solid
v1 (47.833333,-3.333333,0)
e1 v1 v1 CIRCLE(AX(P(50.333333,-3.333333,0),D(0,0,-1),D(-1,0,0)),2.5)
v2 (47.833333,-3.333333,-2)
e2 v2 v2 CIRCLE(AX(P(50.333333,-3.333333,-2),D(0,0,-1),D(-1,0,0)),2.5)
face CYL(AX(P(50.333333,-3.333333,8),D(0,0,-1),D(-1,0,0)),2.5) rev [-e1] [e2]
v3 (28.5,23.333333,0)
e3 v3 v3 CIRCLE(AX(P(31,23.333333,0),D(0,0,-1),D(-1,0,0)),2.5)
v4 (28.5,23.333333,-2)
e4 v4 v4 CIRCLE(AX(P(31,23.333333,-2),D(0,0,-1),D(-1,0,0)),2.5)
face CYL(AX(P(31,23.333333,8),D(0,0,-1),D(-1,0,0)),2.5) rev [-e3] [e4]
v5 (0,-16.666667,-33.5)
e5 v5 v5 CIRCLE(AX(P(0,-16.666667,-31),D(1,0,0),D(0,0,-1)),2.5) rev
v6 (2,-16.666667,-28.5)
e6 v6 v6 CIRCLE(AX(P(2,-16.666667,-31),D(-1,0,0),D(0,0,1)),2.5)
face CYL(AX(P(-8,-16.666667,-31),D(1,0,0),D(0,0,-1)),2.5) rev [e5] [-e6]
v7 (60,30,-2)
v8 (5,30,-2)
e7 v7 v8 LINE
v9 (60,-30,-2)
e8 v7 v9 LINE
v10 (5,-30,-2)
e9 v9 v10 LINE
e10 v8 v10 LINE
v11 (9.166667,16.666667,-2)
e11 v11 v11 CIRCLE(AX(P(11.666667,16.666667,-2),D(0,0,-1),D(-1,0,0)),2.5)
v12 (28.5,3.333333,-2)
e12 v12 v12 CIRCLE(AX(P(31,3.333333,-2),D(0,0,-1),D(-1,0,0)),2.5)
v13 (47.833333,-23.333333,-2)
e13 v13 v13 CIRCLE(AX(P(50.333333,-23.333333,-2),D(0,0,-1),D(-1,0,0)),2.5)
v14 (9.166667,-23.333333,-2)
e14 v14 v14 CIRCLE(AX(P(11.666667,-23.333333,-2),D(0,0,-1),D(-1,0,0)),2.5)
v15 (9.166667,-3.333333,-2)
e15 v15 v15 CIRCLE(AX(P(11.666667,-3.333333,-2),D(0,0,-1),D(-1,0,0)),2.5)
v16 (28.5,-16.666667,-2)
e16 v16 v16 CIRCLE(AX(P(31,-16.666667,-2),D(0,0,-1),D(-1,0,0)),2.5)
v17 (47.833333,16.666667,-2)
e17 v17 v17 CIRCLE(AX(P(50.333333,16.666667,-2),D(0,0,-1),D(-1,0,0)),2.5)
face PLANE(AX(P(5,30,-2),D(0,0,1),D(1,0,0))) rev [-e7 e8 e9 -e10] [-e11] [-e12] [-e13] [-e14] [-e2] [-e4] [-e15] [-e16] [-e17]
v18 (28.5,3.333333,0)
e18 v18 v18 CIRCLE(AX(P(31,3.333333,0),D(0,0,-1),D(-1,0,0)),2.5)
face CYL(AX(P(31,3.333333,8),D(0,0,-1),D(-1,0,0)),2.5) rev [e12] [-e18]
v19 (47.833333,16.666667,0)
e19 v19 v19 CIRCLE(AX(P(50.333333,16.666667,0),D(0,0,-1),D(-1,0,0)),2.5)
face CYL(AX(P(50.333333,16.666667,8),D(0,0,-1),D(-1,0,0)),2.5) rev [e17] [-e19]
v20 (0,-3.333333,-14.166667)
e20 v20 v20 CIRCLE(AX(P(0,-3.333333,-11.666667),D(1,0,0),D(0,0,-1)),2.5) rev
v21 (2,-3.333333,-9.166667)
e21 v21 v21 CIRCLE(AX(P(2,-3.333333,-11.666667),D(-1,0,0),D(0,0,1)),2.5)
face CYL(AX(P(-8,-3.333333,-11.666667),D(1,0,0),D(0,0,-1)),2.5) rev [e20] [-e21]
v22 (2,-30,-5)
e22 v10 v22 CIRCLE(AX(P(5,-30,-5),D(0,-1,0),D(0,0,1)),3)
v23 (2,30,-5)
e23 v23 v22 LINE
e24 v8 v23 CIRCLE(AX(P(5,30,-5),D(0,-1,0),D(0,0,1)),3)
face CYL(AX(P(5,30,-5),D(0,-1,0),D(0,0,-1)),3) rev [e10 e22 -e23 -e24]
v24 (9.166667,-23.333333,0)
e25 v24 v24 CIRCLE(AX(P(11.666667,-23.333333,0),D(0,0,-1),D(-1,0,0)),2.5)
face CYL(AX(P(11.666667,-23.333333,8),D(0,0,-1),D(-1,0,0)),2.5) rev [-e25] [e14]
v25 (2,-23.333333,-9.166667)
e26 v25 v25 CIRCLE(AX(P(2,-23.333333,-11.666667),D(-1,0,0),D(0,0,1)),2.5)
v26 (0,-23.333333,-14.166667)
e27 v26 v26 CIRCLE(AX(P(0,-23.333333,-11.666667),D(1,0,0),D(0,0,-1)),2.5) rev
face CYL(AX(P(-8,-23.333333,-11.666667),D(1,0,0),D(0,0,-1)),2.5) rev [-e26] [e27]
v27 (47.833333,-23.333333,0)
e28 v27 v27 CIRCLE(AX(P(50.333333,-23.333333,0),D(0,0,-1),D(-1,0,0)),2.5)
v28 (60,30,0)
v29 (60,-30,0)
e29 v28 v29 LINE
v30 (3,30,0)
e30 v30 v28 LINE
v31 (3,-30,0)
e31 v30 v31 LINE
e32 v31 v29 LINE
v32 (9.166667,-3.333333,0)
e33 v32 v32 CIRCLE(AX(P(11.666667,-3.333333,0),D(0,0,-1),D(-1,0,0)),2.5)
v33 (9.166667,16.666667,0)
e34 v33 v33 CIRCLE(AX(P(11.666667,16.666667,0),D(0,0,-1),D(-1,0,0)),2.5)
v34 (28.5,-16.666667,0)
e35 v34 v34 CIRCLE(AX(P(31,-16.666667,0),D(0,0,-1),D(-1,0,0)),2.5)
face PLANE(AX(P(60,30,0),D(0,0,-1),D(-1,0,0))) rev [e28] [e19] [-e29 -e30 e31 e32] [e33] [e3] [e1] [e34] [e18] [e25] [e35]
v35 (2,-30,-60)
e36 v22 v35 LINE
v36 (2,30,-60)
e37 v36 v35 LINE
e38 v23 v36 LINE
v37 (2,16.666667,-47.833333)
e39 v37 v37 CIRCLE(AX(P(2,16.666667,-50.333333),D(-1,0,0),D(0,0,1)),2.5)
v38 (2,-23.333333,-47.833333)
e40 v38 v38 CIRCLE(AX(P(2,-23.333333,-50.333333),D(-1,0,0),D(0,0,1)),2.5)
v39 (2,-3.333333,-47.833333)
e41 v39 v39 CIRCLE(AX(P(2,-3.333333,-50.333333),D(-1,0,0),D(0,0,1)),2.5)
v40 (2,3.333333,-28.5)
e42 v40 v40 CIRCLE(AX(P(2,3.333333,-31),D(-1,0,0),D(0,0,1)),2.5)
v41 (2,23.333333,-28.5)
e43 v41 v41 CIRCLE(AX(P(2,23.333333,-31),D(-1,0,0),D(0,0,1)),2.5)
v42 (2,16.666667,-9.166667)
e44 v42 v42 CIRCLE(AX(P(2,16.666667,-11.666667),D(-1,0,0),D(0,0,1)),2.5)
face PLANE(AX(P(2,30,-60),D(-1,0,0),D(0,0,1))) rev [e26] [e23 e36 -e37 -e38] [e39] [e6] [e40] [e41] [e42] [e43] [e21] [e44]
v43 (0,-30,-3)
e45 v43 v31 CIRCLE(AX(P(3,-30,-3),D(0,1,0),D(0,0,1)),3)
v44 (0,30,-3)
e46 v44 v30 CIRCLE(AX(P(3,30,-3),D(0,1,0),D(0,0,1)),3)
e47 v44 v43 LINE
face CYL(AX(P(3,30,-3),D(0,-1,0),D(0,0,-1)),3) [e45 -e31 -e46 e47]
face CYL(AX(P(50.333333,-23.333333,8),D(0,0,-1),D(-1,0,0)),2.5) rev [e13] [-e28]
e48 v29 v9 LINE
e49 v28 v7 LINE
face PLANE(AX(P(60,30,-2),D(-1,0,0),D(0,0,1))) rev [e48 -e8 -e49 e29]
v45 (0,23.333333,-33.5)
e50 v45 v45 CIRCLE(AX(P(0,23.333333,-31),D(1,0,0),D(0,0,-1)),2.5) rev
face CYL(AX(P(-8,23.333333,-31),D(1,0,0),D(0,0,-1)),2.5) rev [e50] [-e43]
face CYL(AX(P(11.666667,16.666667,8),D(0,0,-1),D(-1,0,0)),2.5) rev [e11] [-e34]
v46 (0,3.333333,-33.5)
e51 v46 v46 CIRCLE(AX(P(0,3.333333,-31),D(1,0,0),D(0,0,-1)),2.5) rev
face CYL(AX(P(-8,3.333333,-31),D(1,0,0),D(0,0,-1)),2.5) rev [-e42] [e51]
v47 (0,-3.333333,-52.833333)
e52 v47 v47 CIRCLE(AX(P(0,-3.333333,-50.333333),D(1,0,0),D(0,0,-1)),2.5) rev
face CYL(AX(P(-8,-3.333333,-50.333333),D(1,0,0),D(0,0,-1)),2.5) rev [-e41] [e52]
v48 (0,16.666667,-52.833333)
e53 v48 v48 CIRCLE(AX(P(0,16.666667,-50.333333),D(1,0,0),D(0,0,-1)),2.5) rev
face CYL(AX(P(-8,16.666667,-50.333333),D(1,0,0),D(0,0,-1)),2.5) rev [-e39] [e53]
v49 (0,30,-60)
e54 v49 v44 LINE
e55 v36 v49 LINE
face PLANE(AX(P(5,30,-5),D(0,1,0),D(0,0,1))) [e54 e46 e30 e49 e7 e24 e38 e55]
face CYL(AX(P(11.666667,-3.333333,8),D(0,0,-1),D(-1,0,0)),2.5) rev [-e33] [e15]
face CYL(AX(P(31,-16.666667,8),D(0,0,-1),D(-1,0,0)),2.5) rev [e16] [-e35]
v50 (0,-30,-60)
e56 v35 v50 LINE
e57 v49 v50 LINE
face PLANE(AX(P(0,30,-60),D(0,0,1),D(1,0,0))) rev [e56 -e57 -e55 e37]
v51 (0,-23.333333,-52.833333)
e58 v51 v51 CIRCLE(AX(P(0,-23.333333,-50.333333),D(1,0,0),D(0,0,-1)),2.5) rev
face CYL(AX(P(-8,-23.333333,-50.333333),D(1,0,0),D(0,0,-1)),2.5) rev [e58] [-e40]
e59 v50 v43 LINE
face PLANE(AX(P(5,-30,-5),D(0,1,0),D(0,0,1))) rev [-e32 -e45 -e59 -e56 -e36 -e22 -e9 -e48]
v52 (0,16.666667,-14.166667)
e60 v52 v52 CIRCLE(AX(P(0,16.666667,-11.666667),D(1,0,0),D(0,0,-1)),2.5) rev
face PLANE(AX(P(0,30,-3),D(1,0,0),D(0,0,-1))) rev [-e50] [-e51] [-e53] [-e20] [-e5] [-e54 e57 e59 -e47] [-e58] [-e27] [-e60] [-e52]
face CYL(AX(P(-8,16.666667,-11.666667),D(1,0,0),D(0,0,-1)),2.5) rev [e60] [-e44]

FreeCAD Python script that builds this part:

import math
import FreeCAD as App
import Part
import Sketcher
Q = App.Units.Quantity

doc = App.newDocument("Part")
body = doc.addObject("PartDesign::Body", "Body")

# Sketch on XZ plane
sketch1 = doc.addObject("Sketcher::SketchObject", "Sketch")
body.addObject(sketch1)
sketch1.AttachmentSupport = (doc.XZ_Plane, [""])
sketch1.MapMode = "FlatFace"
sketch1.addGeometry([
    Part.LineSegment(App.Vector(0, -60, 0), App.Vector(0, -3, 0)),  # 0
    Part.ArcOfCircle(Part.Circle(App.Vector(3, -3, 0), App.Vector(0, 0, 1), 3), math.radians(90), math.radians(180)),  # 1
    Part.LineSegment(App.Vector(3, 0, 0), App.Vector(60, 0, 0)),  # 2
    Part.LineSegment(App.Vector(60, 0, 0), App.Vector(60, -2, 0)),  # 3
    Part.LineSegment(App.Vector(60, -2, 0), App.Vector(5, -2, 0)),  # 4
    Part.ArcOfCircle(Part.Circle(App.Vector(5, -5, 0), App.Vector(0, 0, 1), 3), math.radians(90), math.radians(180)),  # 5
    Part.LineSegment(App.Vector(2, -5, 0), App.Vector(2, -60, 0)),  # 6
    Part.LineSegment(App.Vector(2, -60, 0), App.Vector(0, -60, 0)),  # 7
], False)
sketch1.addConstraint([
    Sketcher.Constraint("Tangent", 0, 2, 1, 2),
    Sketcher.Constraint("Tangent", 1, 1, 2, 1),
    Sketcher.Constraint("Coincident", 2, 2, 3, 1),
    Sketcher.Constraint("Coincident", 3, 2, 4, 1),
    Sketcher.Constraint("Tangent", 4, 2, 5, 1),
    Sketcher.Constraint("Tangent", 5, 2, 6, 1),
    Sketcher.Constraint("Coincident", 6, 2, 7, 1),
    Sketcher.Constraint("Coincident", 7, 2, 0, 1),
    Sketcher.Constraint("Vertical", 0),
    Sketcher.Constraint("Horizontal", 2),
    Sketcher.Constraint("Vertical", 3),
    Sketcher.Constraint("Horizontal", 4),
    Sketcher.Constraint("Vertical", 6),
    Sketcher.Constraint("Horizontal", 7),
    Sketcher.Constraint("Equal", 1, 5),
    Sketcher.Constraint("PointOnObject", 0, 2, -2),
    Sketcher.Constraint("PointOnObject", 1, 1, -1),
    Sketcher.Constraint("Equal", 2, 0),
    Sketcher.Constraint("Equal", 7, 3),
    Sketcher.Constraint("Radius", 1, Q("3 mm")),
    Sketcher.Constraint("DistanceX", 2, 1, 2, 2, Q("57 mm")),
    Sketcher.Constraint("DistanceX", 4, 2, 4, 1, Q("55 mm")),
])
pad1 = doc.addObject("PartDesign::Pad", "Pad")
body.addObject(pad1)
pad1.Profile = sketch1
pad1.Length = 60
pad1.Midplane = True

# Sketch on XY plane
sketch2 = doc.addObject("Sketcher::SketchObject", "Sketch001")
body.addObject(sketch2)
sketch2.AttachmentSupport = (doc.XY_Plane, [""])
sketch2.MapMode = "FlatFace"
sketch2.AttachmentOffset = App.Placement(App.Vector(0, 0, -2), App.Rotation())
sketch2.addGeometry([
    Part.Circle(App.Vector(50.333333, -23.333333, 0), App.Vector(0, 0, 1), 2.5),  # 0
    Part.Circle(App.Vector(50.333333, -3.333333, 0), App.Vector(0, 0, 1), 2.5),  # 1
    Part.Circle(App.Vector(50.333333, 16.666667, 0), App.Vector(0, 0, 1), 2.5),  # 2
    Part.Circle(App.Vector(31, 23.333333, 0), App.Vector(0, 0, 1), 2.5),  # 3
    Part.Circle(App.Vector(31, 3.333333, 0), App.Vector(0, 0, 1), 2.5),  # 4
    Part.Circle(App.Vector(31, -16.666667, 0), App.Vector(0, 0, 1), 2.5),  # 5
    Part.Circle(App.Vector(11.666667, -23.333333, 0), App.Vector(0, 0, 1), 2.5),  # 6
    Part.Circle(App.Vector(11.666667, -3.333333, 0), App.Vector(0, 0, 1), 2.5),  # 7
    Part.Circle(App.Vector(11.666667, 16.666667, 0), App.Vector(0, 0, 1), 2.5),  # 8
], False)
sketch2.addConstraint([
    Sketcher.Constraint("Equal", 0, 1),
    Sketcher.Constraint("Equal", 1, 2),
    Sketcher.Constraint("Equal", 2, 3),
    Sketcher.Constraint("Equal", 3, 4),
    Sketcher.Constraint("Equal", 4, 5),
    Sketcher.Constraint("Equal", 5, 6),
    Sketcher.Constraint("Equal", 6, 7),
    Sketcher.Constraint("Equal", 7, 8),
    Sketcher.Constraint("Horizontal", 0, 3, 6, 3),
    Sketcher.Constraint("Horizontal", 1, 3, 7, 3),
    Sketcher.Constraint("Horizontal", 2, 3, 8, 3),
    Sketcher.Constraint("Vertical", 0, 3, 1, 3),
    Sketcher.Constraint("Vertical", 1, 3, 2, 3),
    Sketcher.Constraint("Vertical", 3, 3, 4, 3),
    Sketcher.Constraint("Vertical", 4, 3, 5, 3),
    Sketcher.Constraint("Vertical", 6, 3, 7, 3),
    Sketcher.Constraint("Vertical", 7, 3, 8, 3),
    Sketcher.Constraint("Diameter", 0, Q("5 mm")),
    Sketcher.Constraint("DistanceX", -1, 1, 3, 3, Q("31 mm")),
    Sketcher.Constraint("DistanceY", 0, 3, 1, 3, Q("20 mm")),
    Sketcher.Constraint("DistanceY", 1, 3, 2, 3, Q("20 mm")),
    Sketcher.Constraint("DistanceY", 4, 3, 3, 3, Q("20 mm")),
    Sketcher.Constraint("DistanceY", 5, 3, 4, 3, Q("20 mm")),
    Sketcher.Constraint("DistanceX", -1, 1, 0, 3, Q("50.333333 mm")),
    Sketcher.Constraint("DistanceY", 0, 3, -1, 1, Q("23.333333 mm")),
    Sketcher.Constraint("DistanceY", -1, 1, 3, 3, Q("23.333333 mm")),
    Sketcher.Constraint("DistanceX", -1, 1, 6, 3, Q("11.666667 mm")),
])
pocket1 = doc.addObject("PartDesign::Pocket", "Pocket")
body.addObject(pocket1)
pocket1.Profile = sketch2
pocket1.Length = 10
pocket1.Reversed = True
doc.recompute()

datumplane = doc.addObject("PartDesign::Plane", "DatumPlane")
body.addObject(datumplane)
datumplane.Placement = App.Placement(App.Vector(0, 0, 0), App.Rotation(App.Vector(-0.707106781, 0, 0.707106781), App.Vector(0, -1, 0), App.Vector(0.707106781, 0, 0.707106781), "ZXY"))
mirrored = doc.addObject("PartDesign::Mirrored", "Mirrored")
body.addObject(mirrored)
mirrored.Originals = [pocket1]
mirrored.MirrorPlane = (datumplane, [""])
body.Tip = mirrored

doc.recompute()
